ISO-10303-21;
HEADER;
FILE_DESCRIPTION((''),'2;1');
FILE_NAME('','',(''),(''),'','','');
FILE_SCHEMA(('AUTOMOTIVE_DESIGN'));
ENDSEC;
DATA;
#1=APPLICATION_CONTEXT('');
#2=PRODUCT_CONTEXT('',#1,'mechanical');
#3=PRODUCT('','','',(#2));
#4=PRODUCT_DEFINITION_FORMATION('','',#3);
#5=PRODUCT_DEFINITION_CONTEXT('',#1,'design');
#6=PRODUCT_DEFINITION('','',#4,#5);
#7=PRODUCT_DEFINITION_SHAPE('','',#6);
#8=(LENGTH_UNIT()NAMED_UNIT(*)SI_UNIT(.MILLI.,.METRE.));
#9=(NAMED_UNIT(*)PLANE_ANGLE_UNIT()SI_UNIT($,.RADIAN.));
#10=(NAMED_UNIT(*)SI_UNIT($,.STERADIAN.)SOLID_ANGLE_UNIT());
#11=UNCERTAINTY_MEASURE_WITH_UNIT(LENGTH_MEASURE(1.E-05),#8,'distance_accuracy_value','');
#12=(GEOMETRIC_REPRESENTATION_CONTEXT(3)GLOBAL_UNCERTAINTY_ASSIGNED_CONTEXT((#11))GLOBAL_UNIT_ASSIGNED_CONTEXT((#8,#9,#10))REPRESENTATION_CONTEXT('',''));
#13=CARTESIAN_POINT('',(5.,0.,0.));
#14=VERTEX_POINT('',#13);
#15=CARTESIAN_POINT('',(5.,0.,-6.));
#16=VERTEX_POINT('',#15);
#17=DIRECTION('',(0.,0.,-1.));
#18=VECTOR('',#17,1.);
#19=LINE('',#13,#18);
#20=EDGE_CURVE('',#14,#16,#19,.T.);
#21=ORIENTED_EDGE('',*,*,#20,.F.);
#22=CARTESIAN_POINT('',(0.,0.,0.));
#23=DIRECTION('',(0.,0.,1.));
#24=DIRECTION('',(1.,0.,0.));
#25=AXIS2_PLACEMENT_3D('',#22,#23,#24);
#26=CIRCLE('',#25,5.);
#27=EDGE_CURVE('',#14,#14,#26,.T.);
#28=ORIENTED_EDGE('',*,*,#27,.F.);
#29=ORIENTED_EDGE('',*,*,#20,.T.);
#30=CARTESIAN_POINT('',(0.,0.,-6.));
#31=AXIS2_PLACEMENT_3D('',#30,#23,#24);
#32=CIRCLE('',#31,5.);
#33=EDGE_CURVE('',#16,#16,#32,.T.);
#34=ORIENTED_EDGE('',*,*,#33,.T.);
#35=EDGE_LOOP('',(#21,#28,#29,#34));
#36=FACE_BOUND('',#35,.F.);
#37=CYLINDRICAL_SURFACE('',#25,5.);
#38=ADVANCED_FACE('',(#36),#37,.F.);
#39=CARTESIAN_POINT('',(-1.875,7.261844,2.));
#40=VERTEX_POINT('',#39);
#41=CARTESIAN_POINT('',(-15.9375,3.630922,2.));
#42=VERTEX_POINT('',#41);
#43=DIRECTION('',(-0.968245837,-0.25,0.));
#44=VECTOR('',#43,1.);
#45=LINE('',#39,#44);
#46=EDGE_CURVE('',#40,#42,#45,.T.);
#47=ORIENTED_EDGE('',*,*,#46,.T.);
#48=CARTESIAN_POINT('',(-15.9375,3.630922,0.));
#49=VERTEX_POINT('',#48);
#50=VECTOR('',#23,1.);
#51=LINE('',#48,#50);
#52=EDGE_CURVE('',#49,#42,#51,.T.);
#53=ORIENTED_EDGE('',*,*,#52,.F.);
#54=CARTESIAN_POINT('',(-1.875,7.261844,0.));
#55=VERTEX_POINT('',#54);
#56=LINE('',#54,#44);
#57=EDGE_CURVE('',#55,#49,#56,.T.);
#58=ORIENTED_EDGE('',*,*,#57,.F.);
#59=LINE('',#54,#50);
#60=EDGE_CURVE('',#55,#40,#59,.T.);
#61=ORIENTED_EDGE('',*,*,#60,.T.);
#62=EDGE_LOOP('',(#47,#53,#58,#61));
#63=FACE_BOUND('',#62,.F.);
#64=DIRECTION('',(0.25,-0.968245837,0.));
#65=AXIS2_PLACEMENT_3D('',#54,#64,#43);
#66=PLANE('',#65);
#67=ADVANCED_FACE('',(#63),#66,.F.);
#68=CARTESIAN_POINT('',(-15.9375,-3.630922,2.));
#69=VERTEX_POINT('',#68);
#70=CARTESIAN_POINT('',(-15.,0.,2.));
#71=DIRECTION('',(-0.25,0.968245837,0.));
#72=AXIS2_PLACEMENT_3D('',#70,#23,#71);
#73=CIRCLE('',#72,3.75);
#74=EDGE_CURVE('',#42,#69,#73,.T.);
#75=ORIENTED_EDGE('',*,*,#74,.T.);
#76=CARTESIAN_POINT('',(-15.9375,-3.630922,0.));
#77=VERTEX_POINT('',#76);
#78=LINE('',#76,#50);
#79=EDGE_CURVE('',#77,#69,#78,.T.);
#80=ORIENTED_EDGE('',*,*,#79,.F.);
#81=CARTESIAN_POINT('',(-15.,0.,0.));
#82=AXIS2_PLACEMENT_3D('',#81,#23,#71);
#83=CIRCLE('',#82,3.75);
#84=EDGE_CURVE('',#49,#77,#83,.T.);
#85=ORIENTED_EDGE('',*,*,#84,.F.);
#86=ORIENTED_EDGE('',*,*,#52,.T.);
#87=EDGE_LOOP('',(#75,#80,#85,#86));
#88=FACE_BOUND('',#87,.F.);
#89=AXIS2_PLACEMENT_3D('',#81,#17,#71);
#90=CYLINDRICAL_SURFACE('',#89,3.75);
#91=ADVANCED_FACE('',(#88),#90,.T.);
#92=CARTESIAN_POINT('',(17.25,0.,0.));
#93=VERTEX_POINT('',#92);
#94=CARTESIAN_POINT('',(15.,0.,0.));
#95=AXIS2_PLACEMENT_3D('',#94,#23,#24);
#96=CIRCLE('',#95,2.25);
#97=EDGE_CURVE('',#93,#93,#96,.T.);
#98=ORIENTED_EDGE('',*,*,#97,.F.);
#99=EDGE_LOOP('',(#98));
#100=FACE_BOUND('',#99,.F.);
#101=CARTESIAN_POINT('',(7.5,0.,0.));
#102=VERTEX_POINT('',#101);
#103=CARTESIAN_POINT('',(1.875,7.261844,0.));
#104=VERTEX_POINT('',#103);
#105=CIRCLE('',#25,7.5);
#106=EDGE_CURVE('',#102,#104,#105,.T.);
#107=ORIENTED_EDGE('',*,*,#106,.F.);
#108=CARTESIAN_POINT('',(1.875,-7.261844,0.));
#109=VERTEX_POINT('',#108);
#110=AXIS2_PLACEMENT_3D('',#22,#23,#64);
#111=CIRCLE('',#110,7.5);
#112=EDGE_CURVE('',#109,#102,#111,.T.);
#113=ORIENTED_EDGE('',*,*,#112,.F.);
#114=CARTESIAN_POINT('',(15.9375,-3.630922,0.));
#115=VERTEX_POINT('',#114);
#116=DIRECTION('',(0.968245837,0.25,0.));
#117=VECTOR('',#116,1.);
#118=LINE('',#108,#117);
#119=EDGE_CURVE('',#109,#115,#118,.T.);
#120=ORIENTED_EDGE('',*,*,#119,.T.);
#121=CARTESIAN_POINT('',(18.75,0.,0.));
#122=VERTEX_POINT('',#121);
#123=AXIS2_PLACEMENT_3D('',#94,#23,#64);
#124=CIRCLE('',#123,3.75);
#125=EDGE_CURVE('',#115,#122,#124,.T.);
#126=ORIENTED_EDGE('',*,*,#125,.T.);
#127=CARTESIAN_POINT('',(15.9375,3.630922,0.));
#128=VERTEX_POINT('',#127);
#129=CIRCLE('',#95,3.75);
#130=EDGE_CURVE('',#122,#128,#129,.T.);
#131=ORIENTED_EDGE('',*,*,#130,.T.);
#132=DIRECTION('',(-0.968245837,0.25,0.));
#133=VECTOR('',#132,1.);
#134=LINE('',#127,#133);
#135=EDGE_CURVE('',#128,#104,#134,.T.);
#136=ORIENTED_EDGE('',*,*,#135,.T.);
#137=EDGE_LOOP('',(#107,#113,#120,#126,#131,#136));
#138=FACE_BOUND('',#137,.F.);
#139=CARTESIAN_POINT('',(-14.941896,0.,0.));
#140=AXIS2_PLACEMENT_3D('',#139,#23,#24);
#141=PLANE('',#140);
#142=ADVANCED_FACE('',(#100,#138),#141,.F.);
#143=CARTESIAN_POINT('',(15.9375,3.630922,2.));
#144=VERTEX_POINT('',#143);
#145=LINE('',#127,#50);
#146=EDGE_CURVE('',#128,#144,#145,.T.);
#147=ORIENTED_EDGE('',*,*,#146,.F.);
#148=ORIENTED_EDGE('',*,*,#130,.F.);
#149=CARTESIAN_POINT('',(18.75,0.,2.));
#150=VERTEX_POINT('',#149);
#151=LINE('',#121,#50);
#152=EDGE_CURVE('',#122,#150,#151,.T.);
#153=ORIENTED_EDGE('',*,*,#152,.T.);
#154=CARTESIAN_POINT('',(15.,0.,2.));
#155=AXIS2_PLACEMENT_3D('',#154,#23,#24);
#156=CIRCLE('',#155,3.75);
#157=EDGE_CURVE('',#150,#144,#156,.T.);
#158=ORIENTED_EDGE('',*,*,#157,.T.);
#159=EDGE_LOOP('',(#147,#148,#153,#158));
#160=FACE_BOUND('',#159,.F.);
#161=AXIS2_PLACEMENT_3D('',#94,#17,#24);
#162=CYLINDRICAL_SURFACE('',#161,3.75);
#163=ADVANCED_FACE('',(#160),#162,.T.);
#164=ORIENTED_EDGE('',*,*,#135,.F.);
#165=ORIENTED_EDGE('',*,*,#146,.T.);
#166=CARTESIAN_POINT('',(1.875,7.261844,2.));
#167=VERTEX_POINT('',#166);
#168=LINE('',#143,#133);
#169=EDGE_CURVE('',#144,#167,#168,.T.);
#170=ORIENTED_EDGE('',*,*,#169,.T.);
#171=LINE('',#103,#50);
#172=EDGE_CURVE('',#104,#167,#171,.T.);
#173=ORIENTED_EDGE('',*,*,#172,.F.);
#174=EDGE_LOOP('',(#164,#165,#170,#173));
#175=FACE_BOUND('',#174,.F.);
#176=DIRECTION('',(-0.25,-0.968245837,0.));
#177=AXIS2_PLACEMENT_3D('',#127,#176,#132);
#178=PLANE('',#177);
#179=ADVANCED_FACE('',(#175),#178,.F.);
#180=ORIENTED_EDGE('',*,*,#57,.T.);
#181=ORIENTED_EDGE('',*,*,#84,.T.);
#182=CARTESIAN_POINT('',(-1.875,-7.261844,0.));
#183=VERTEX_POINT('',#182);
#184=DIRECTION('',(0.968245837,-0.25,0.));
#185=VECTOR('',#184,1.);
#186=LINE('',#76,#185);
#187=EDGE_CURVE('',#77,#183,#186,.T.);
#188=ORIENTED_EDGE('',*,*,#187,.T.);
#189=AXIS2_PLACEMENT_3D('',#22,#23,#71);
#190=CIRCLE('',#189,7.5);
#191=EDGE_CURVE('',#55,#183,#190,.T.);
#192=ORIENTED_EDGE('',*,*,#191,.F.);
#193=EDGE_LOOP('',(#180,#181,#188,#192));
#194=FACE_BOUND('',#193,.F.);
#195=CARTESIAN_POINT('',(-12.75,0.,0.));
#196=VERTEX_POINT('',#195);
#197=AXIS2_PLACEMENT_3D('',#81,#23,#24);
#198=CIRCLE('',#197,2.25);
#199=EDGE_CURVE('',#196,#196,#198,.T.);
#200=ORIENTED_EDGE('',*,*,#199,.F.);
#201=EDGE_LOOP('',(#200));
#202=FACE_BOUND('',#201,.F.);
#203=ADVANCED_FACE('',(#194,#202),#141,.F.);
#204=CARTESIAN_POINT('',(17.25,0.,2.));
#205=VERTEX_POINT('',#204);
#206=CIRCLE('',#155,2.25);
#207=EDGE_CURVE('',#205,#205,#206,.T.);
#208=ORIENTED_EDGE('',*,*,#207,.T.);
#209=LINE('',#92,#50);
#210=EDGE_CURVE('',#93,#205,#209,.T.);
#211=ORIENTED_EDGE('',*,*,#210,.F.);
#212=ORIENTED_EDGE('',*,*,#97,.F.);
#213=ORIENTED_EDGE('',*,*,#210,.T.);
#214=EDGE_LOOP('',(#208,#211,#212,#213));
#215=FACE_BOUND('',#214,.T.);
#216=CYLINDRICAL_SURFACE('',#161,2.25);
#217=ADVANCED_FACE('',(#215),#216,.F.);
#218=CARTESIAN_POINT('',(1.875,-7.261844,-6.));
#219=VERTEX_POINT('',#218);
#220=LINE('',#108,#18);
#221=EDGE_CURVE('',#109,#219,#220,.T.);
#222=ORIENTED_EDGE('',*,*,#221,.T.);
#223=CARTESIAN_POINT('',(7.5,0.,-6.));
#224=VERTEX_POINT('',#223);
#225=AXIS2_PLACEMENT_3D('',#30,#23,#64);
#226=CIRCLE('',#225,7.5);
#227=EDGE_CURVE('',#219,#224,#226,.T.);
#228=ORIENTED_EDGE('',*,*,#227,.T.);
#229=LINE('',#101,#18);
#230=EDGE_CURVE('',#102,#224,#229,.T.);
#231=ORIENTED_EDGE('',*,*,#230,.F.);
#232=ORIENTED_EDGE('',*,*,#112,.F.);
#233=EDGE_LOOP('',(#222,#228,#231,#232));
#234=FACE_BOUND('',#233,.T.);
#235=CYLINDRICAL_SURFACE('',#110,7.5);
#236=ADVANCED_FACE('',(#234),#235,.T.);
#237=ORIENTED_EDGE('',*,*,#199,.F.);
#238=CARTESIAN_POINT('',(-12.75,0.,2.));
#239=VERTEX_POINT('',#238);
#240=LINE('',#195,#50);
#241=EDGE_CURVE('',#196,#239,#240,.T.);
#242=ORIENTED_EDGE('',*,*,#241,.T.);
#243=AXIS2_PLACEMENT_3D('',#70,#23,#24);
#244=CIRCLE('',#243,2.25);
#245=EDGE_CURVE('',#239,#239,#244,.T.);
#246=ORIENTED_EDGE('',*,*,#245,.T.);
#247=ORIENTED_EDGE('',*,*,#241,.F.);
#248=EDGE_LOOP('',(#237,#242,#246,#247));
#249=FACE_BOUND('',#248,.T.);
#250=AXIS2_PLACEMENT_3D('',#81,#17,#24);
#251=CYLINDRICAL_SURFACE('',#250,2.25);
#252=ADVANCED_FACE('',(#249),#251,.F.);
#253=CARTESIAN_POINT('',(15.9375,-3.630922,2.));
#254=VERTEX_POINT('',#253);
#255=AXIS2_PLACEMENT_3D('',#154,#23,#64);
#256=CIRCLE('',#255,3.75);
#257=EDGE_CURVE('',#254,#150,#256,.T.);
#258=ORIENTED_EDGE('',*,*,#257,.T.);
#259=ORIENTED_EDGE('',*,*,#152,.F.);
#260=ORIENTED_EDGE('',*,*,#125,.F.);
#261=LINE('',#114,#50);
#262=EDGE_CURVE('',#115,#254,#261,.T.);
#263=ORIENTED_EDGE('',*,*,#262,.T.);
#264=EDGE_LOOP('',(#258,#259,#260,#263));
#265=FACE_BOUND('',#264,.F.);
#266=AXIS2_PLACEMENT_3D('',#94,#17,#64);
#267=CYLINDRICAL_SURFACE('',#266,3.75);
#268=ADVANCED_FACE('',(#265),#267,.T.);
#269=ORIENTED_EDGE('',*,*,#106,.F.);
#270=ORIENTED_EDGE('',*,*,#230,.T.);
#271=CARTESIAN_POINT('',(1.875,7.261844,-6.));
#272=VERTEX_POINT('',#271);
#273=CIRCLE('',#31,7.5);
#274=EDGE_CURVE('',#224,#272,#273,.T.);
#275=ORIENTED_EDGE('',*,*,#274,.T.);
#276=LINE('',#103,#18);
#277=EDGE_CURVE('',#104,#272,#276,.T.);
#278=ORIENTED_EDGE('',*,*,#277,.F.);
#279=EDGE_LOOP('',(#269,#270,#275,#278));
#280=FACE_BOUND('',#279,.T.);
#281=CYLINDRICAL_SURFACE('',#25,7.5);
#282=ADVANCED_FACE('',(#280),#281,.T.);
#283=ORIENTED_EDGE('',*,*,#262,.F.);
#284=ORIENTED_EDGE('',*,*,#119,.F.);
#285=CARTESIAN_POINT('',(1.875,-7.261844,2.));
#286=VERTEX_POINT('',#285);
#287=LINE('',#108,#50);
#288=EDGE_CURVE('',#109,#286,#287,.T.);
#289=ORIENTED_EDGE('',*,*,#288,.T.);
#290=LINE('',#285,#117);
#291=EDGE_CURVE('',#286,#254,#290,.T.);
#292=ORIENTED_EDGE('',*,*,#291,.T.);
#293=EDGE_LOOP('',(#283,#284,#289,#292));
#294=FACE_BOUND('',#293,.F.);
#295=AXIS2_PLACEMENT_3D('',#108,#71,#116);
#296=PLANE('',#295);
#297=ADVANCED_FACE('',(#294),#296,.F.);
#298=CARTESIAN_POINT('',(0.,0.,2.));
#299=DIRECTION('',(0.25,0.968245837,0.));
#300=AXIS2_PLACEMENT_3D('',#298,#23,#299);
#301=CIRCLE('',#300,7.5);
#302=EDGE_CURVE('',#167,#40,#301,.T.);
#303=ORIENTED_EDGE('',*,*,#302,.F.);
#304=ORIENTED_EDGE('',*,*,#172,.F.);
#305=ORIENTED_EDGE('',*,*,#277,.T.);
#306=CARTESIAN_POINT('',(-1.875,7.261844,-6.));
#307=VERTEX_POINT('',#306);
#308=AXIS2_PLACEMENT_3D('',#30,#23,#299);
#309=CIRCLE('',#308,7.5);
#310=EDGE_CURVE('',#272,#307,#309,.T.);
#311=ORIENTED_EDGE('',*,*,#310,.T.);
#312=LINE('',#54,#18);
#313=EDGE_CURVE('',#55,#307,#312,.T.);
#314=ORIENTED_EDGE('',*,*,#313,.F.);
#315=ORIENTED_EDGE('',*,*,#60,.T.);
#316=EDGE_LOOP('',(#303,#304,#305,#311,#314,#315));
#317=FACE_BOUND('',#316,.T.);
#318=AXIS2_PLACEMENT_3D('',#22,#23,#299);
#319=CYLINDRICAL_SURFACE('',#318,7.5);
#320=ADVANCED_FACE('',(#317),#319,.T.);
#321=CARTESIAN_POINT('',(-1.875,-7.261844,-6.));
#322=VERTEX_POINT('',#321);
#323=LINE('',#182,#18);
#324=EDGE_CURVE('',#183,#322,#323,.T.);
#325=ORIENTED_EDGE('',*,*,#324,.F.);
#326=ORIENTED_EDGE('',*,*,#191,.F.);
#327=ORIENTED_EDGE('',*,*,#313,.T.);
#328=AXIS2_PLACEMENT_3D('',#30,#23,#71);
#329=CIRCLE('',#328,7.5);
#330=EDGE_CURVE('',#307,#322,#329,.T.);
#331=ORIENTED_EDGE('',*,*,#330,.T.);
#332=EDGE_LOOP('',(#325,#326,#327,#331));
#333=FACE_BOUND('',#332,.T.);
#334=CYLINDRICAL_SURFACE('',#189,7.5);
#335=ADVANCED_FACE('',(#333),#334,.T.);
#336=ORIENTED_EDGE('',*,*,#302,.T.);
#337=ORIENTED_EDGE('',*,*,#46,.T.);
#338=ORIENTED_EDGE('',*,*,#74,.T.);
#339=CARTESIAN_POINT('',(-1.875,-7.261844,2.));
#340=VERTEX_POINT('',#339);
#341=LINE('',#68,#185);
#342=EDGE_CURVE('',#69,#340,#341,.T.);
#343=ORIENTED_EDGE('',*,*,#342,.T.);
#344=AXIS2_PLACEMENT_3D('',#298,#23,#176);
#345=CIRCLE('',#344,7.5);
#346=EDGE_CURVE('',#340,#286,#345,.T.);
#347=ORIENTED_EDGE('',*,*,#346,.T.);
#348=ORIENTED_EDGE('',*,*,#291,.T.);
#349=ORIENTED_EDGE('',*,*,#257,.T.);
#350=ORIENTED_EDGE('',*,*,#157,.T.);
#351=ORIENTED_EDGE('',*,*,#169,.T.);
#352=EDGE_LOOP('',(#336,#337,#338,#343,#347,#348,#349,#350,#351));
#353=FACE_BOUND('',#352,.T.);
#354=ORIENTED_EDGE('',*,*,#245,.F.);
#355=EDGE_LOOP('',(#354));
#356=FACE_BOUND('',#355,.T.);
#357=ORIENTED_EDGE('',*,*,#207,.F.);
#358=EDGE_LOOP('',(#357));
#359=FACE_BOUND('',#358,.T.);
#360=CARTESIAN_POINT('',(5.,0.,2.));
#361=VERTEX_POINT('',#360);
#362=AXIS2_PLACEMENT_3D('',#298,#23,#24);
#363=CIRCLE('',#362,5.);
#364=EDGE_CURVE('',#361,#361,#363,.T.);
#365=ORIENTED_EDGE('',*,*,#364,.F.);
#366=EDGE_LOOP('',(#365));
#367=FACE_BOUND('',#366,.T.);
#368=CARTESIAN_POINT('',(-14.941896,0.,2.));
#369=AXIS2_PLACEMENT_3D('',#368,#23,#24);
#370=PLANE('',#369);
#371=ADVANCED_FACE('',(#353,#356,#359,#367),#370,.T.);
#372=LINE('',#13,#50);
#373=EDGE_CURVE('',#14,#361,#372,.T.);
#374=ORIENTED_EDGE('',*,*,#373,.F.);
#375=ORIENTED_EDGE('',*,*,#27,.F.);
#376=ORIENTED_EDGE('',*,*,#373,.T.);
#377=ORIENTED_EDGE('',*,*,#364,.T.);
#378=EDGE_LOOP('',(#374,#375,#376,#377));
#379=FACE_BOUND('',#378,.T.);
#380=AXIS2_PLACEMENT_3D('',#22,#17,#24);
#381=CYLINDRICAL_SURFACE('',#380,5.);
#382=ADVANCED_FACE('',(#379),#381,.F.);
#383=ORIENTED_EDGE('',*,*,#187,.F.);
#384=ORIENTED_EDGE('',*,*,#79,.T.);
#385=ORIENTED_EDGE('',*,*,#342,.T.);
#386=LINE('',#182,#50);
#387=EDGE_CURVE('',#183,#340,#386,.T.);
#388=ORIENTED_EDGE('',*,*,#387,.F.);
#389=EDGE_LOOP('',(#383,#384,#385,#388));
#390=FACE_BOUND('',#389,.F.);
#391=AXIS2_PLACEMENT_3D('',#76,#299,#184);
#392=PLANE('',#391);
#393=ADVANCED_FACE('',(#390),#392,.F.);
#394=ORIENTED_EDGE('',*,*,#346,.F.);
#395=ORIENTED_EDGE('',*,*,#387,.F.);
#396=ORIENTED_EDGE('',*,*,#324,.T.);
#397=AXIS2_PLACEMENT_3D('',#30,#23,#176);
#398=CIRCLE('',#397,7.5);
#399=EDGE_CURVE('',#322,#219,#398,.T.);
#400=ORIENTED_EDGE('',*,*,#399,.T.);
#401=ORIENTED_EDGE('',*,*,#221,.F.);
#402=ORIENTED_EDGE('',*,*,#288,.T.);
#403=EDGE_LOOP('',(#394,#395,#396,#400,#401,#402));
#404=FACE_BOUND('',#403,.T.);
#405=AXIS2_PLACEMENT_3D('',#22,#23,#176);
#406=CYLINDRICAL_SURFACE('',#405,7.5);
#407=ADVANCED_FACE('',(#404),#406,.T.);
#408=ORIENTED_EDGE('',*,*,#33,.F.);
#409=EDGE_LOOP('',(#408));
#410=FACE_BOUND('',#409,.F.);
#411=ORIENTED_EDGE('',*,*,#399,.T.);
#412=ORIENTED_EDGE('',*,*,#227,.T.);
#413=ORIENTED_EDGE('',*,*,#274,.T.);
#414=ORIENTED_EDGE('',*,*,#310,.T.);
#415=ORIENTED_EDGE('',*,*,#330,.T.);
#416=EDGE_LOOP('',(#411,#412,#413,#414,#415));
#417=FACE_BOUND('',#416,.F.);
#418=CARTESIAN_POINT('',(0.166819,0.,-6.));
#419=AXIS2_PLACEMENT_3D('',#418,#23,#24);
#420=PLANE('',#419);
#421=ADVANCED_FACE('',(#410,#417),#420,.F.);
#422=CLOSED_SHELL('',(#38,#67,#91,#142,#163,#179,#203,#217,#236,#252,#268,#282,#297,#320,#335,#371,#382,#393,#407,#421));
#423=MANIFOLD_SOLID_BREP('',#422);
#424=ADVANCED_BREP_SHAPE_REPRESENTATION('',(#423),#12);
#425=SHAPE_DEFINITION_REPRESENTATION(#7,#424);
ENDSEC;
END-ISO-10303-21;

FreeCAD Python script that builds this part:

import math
import FreeCAD as App
import Part
import Sketcher
from FreeCAD import Vector
Q = App.Units.Quantity

doc = App.newDocument("Part")
body = doc.addObject("PartDesign::Body", "Body")

# Sketch on XY plane
sketch1 = body.newObject("Sketcher::SketchObject", "Sketch")
sketch1.AttachmentSupport = (doc.getObject("XY_Plane"), [""])
sketch1.MapMode = "FlatFace"
sketch1.addGeometry(Part.ArcOfCircle(Part.Circle(Vector(-15, 0, 0), Vector(0, 0, 1), 3.8), math.radians(104), math.radians(256)), False)
sketch1.addGeometry(Part.LineSegment(Vector(-15.9, -3.6, 0), Vector(-1.9, -7.3, 0)), False)
sketch1.addGeometry(Part.ArcOfCircle(Part.Circle(Vector(0, 0, 0), Vector(0, 0, 1), 7.5), math.radians(-104), math.radians(-76)), False)
sketch1.addGeometry(Part.LineSegment(Vector(1.9, -7.3, 0), Vector(15.9, -3.6, 0)), False)
sketch1.addGeometry(Part.ArcOfCircle(Part.Circle(Vector(15, 0, 0), Vector(0, 0, 1), 3.8), math.radians(-76), math.radians(0)), False)
sketch1.addGeometry(Part.ArcOfCircle(Part.Circle(Vector(15, 0, 0), Vector(0, 0, 1), 3.8), math.radians(0), math.radians(76)), False)
sketch1.addGeometry(Part.LineSegment(Vector(15.9, 3.6, 0), Vector(1.9, 7.3, 0)), False)
sketch1.addGeometry(Part.ArcOfCircle(Part.Circle(Vector(0, 0, 0), Vector(0, 0, 1), 7.5), math.radians(76), math.radians(104)), False)
sketch1.addGeometry(Part.LineSegment(Vector(-1.9, 7.3, 0), Vector(-15.9, 3.6, 0)), False)
sketch1.addGeometry(Part.Circle(Vector(-15, 0, 0), Vector(0, 0, 1), 2.2), False)
sketch1.addGeometry(Part.Circle(Vector(0, 0, 0), Vector(0, 0, 1), 5), False)
sketch1.addGeometry(Part.Circle(Vector(15, 0, 0), Vector(0, 0, 1), 2.2), False)
sketch1.addConstraint(Sketcher.Constraint("Tangent", 0, 2, 1, 1))
sketch1.addConstraint(Sketcher.Constraint("Tangent", 1, 2, 2, 1))
sketch1.addConstraint(Sketcher.Constraint("Tangent", 2, 2, 3, 1))
sketch1.addConstraint(Sketcher.Constraint("Tangent", 3, 2, 4, 1))
sketch1.addConstraint(Sketcher.Constraint("Tangent", 4, 2, 5, 1))
sketch1.addConstraint(Sketcher.Constraint("Tangent", 5, 2, 6, 1))
sketch1.addConstraint(Sketcher.Constraint("Tangent", 6, 2, 7, 1))
sketch1.addConstraint(Sketcher.Constraint("Tangent", 7, 2, 8, 1))
sketch1.addConstraint(Sketcher.Constraint("Tangent", 8, 2, 0, 1))
sketch1.addConstraint(Sketcher.Constraint("Coincident", 2, 3, -1, 1))
sketch1.addConstraint(Sketcher.Constraint("Coincident", 7, 3, -1, 1))
sketch1.addConstraint(Sketcher.Constraint("Coincident", 10, 3, -1, 1))
sketch1.addConstraint(Sketcher.Constraint("Coincident", 9, 3, 0, 3))
sketch1.addConstraint(Sketcher.Constraint("Coincident", 11, 3, 4, 3))
sketch1.addConstraint(Sketcher.Constraint("Equal", 0, 4))
sketch1.addConstraint(Sketcher.Constraint("Equal", 4, 5))
sketch1.addConstraint(Sketcher.Constraint("Equal", 2, 7))
sketch1.addConstraint(Sketcher.Constraint("Equal", 9, 11))
sketch1.addConstraint(Sketcher.Constraint("Symmetric", 0, 3, 4, 3, -1, 1))
sketch1.addConstraint(Sketcher.Constraint("PointOnObject", 0, 3, -1))
sketch1.addConstraint(Sketcher.Constraint("PointOnObject", 4, 2, -1))
sketch1.addConstraint(Sketcher.Constraint("Diameter", 10, Q("10 mm")))
sketch1.addConstraint(Sketcher.Constraint("Diameter", 9, Q("4.5 mm")))
sketch1.addConstraint(Sketcher.Constraint("Radius", 2, Q("7.5 mm")))
sketch1.addConstraint(Sketcher.Constraint("Radius", 0, Q("3.75 mm")))
sketch1.addConstraint(Sketcher.Constraint("DistanceX", 0, 3, -1, 1, Q("15 mm")))
pad1 = body.newObject("PartDesign::Pad", "Pad")
pad1.Profile = sketch1
pad1.Length = 2

# Sketch on XY plane
sketch2 = body.newObject("Sketcher::SketchObject", "Sketch001")
sketch2.AttachmentSupport = (doc.getObject("XY_Plane"), [""])
sketch2.MapMode = "FlatFace"
sketch2.addGeometry(Part.ArcOfCircle(Part.Circle(Vector(0, 0, 0), Vector(0, 0, 1), 7.5), math.radians(-76), math.radians(0)), False)
sketch2.addGeometry(Part.ArcOfCircle(Part.Circle(Vector(0, 0, 0), Vector(0, 0, 1), 7.5), math.radians(0), math.radians(76)), False)
sketch2.addGeometry(Part.ArcOfCircle(Part.Circle(Vector(0, 0, 0), Vector(0, 0, 1), 7.5), math.radians(76), math.radians(104)), False)
sketch2.addGeometry(Part.ArcOfCircle(Part.Circle(Vector(0, 0, 0), Vector(0, 0, 1), 7.5), math.radians(104), math.radians(256)), False)
sketch2.addGeometry(Part.ArcOfCircle(Part.Circle(Vector(0, 0, 0), Vector(0, 0, 1), 7.5), math.radians(-104), math.radians(-76)), False)
sketch2.addGeometry(Part.Circle(Vector(0, 0, 0), Vector(0, 0, 1), 5), False)
sketch2.addConstraint(Sketcher.Constraint("Tangent", 0, 2, 1, 1))
sketch2.addConstraint(Sketcher.Constraint("Tangent", 1, 2, 2, 1))
sketch2.addConstraint(Sketcher.Constraint("Tangent", 2, 2, 3, 1))
sketch2.addConstraint(Sketcher.Constraint("Tangent", 3, 2, 4, 1))
sketch2.addConstraint(Sketcher.Constraint("Tangent", 4, 2, 0, 1))
sketch2.addConstraint(Sketcher.Constraint("Coincident", 0, 3, -1, 1))
sketch2.addConstraint(Sketcher.Constraint("Coincident", 2, 3, -1, 1))
sketch2.addConstraint(Sketcher.Constraint("Coincident", 5, 3, -1, 1))
sketch2.addConstraint(Sketcher.Constraint("PointOnObject", 0, 2, -1))
sketch2.addConstraint(Sketcher.Constraint("Horizontal", 1, 2, 2, 2))
sketch2.addConstraint(Sketcher.Constraint("Horizontal", 3, 2, 4, 2))
sketch2.addConstraint(Sketcher.Constraint("Vertical", 2, 2, 3, 2))
sketch2.addConstraint(Sketcher.Constraint("Diameter", 5, Q("10 mm")))
sketch2.addConstraint(Sketcher.Constraint("Radius", 0, Q("7.5 mm")))
sketch2.addConstraint(Sketcher.Constraint("DistanceX", 2, 2, 1, 2, Q("3.75 mm")))
pad2 = body.newObject("PartDesign::Pad", "Pad001")
pad2.Profile = sketch2
pad2.Length = 6
pad2.Reversed = True

doc.recompute()
